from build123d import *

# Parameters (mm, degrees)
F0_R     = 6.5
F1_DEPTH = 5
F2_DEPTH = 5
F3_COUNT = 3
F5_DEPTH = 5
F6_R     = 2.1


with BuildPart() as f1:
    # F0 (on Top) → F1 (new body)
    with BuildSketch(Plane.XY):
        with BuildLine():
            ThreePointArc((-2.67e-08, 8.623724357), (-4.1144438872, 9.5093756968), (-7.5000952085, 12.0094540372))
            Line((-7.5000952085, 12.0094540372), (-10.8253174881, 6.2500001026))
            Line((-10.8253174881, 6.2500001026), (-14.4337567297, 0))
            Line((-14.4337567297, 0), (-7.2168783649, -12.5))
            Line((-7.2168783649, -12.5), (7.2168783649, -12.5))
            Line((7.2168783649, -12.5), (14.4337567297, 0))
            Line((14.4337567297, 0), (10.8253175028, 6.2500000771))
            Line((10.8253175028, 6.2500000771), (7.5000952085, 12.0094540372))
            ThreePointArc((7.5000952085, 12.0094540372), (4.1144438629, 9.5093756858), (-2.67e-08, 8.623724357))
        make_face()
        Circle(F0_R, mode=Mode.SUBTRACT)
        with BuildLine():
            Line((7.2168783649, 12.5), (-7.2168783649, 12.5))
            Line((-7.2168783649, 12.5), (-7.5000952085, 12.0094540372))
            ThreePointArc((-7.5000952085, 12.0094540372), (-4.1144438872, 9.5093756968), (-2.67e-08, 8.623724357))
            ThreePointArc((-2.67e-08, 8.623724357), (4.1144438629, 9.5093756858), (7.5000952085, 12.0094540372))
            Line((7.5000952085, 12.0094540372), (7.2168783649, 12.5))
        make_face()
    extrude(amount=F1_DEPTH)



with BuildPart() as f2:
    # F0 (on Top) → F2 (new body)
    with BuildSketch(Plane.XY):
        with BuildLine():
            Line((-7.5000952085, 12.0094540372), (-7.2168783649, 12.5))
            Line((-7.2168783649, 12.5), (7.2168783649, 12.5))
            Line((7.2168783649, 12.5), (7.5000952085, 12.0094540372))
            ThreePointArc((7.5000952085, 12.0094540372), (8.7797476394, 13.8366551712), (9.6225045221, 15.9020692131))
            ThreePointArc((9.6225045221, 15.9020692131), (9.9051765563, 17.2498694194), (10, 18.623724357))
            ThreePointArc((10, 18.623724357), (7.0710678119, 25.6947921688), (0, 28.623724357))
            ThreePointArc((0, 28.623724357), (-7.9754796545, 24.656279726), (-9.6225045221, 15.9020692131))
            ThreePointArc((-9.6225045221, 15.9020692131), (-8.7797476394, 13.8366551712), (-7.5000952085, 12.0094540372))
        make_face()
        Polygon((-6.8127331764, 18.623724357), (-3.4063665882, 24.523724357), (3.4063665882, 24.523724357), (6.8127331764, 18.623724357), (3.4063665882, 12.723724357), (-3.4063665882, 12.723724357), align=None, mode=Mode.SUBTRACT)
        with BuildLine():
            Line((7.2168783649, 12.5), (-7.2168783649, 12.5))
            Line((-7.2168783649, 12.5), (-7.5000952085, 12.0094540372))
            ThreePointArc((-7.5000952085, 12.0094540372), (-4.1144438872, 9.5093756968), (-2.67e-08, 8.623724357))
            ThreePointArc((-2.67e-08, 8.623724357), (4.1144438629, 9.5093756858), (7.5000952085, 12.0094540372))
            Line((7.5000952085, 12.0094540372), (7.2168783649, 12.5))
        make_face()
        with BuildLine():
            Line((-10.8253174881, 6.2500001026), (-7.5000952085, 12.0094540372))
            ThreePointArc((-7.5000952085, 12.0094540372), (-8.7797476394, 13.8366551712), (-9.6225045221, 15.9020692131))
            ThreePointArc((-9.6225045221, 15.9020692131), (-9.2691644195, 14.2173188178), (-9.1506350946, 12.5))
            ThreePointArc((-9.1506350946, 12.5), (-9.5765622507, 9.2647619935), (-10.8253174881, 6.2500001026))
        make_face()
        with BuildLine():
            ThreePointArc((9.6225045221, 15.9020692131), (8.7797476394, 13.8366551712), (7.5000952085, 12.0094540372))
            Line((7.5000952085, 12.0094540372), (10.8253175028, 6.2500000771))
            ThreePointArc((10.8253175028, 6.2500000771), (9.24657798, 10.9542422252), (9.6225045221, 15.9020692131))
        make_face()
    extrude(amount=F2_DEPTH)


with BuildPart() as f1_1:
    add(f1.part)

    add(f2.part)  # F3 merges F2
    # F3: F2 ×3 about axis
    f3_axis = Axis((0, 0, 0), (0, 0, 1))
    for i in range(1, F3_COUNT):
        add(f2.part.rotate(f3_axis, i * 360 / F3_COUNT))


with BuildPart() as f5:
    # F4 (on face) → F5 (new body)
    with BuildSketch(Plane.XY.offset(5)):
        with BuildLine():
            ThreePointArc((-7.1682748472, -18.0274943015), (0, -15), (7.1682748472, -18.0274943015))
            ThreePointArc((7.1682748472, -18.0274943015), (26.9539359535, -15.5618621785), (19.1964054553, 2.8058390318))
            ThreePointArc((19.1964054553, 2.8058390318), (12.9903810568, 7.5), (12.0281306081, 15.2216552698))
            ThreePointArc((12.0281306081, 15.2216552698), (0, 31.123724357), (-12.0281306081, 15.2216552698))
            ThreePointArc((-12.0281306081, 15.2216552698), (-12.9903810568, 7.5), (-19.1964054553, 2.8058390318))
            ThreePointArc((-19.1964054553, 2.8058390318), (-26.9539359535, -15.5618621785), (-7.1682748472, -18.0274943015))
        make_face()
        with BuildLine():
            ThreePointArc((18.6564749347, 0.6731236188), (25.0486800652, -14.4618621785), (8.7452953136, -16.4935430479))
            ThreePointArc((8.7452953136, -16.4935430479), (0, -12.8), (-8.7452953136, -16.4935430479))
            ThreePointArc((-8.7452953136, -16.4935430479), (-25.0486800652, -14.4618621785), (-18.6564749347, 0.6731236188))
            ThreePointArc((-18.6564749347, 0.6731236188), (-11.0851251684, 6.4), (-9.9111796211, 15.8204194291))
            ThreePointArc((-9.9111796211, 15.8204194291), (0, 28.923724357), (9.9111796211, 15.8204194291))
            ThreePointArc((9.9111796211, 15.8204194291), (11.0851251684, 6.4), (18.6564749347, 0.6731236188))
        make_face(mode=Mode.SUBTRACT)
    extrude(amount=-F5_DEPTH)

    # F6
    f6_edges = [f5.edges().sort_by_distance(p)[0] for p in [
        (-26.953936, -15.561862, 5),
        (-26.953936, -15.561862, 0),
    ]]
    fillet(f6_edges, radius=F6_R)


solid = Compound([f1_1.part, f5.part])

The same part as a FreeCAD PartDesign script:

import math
import FreeCAD as App
import Part
import Sketcher
from FreeCAD import Vector
Q = App.Units.Quantity


def edges_at(feature, points):
    """Names of the edges that pass closest to the given points."""
    edges = feature.Shape.Edges
    near = lambda p: min(range(len(edges)), key=lambda i: edges[i].distToShape(Part.Vertex(*p))[0])
    return sorted({f"Edge{near(p) + 1}" for p in points})


def add_polygon(sketch, points):
    """Adds a closed chain of lines whose ends are joined by coincident constraints."""
    first, n = sketch.GeometryCount, len(points)
    for a, b in zip(points, points[1:] + points[:1]):
        sketch.addGeometry(Part.LineSegment(App.Vector(*a, 0), App.Vector(*b, 0)), False)
    for i in range(n):
        sketch.addConstraint(Sketcher.Constraint("Coincident", first + i, 2, first + (i + 1) % n, 1))

doc = App.newDocument("Part")
body = doc.addObject("PartDesign::Body", "Body")

# Sketch on XY plane
sketch1 = body.newObject("Sketcher::SketchObject", "Sketch")
sketch1.AttachmentSupport = (doc.getObject("XY_Plane"), [""])
sketch1.MapMode = "FlatFace"
add_polygon(sketch1, [(-7.500095, 12.009454), (-10.825317, 6.25), (-14.433757, 0), (-7.216878, -12.5), (7.216878, -12.5), (14.433757, 0), (10.825318, 6.25), (7.500095, 12.009454), (7.216878, 12.5), (-7.216878, 12.5)])  # lines 0-9
sketch1.addGeometry(Part.Circle(Vector(0, 0, 0), Vector(0, 0, 1), 6.5), False)  # 10
sketch1.addConstraint([
    Sketcher.Constraint("Horizontal", 3),
    Sketcher.Constraint("Horizontal", 8),
    Sketcher.Constraint("Coincident", 10, 3, -1, 1),
    Sketcher.Constraint("Symmetric", 1, 2, 4, 2, -1, 1),
    Sketcher.Constraint("Symmetric", 2, 2, 7, 2, -1, 1),
    Sketcher.Constraint("Symmetric", 0, 2, 5, 2, -2),
    Sketcher.Constraint("Symmetric", 6, 2, 9, 2, -2),
    Sketcher.Constraint("PointOnObject", 1, 2, -1),
    Sketcher.Constraint("Parallel", 0, 1),
    Sketcher.Constraint("Parallel", 1, 4),
    Sketcher.Constraint("Parallel", 2, 5),
    Sketcher.Constraint("Parallel", 4, 9),
    Sketcher.Constraint("Diameter", 10, Q("13 mm")),
    Sketcher.Constraint("Angle", 0, Q("-120 deg")),
    Sketcher.Constraint("DistanceY", 2, 2, -1, 1, Q("12.5 mm")),
    Sketcher.Constraint("DistanceY", -1, 1, 0, 2, Q("6.25 mm")),
    Sketcher.Constraint("DistanceX", 3, 1, 3, 2, Q("14.433757 mm")),
    Sketcher.Constraint("DistanceX", 6, 2, 4, 2, Q("6.933662 mm")),
])
pad1 = body.newObject("PartDesign::Pad", "Pad")
pad1.Profile = sketch1
pad1.Length = 5
body2 = doc.addObject("PartDesign::Body", "Body001")

# Sketch on XY plane
sketch2 = body2.newObject("Sketcher::SketchObject", "Sketch001")
sketch2.AttachmentSupport = (doc.getObject("XY_Plane001"), [""])
sketch2.MapMode = "FlatFace"
sketch2.addGeometry(Part.ArcOfCircle(Part.Circle(Vector(0, 18.623724, 0), Vector(0, 0, 1), 10), math.radians(-138.591203), math.radians(-90)), False)  # 0
sketch2.addGeometry(Part.ArcOfCircle(Part.Circle(Vector(0, 18.623724, 0), Vector(0, 0, 1), 10), math.radians(-90), math.radians(-41.408797)), False)  # 1
sketch2.addGeometry(Part.LineSegment(Vector(7.500095, 12.009454, 0), Vector(10.825318, 6.25, 0)), False)  # 2
sketch2.addGeometry(Part.ArcOfCircle(Part.Circle(Vector(21.650635, 12.5, 0), Vector(0, 0, 1), 12.5), math.radians(164.20683), math.radians(210)), False)  # 3
sketch2.addGeometry(Part.ArcOfCircle(Part.Circle(Vector(0, 18.623724, 0), Vector(0, 0, 1), 10), math.radians(-15.793168), math.radians(0)), False)  # 4
sketch2.addGeometry(Part.ArcOfCircle(Part.Circle(Vector(0, 18.623724, 0), Vector(0, 0, 1), 10), math.radians(0), math.radians(90)), False)  # 5
sketch2.addGeometry(Part.ArcOfCircle(Part.Circle(Vector(0, 18.623724, 0), Vector(0, 0, 1), 10), math.radians(90), math.radians(195.793168)), False)  # 6
sketch2.addGeometry(Part.ArcOfCircle(Part.Circle(Vector(-21.650635, 12.5, 0), Vector(0, 0, 1), 12.5), math.radians(0), math.radians(15.79317)), False)  # 7
sketch2.addGeometry(Part.ArcOfCircle(Part.Circle(Vector(-21.650635, 12.5, 0), Vector(0, 0, 1), 12.5), math.radians(-29.999999), math.radians(0)), False)  # 8
sketch2.addGeometry(Part.LineSegment(Vector(-10.825317, 6.25, 0), Vector(-7.500095, 12.009454, 0)), False)  # 9
add_polygon(sketch2, [(-3.406367, 12.723724), (-6.812733, 18.623724), (-3.406367, 24.523724), (3.406367, 24.523724), (6.812733, 18.623724), (3.406367, 12.723724)])  # lines 10-15
sketch2.addConstraint([
    Sketcher.Constraint("Tangent", 0, 2, 1, 1),
    Sketcher.Constraint("Coincident", 1, 2, 2, 1),
    Sketcher.Constraint("Tangent", 2, 2, 3, 2),
    Sketcher.Constraint("Tangent", 3, 1, 4, 1),
    Sketcher.Constraint("Tangent", 4, 2, 5, 1),
    Sketcher.Constraint("Tangent", 5, 2, 6, 1),
    Sketcher.Constraint("Tangent", 6, 2, 7, 2),
    Sketcher.Constraint("Tangent", 7, 1, 8, 2),
    Sketcher.Constraint("Tangent", 8, 1, 9, 1),
    Sketcher.Constraint("Coincident", 9, 2, 0, 1),
    Sketcher.Constraint("Horizontal", 12),
    Sketcher.Constraint("Horizontal", 15),
    Sketcher.Constraint("Coincident", 4, 3, 0, 3),
    Sketcher.Constraint("Coincident", 6, 3, 0, 3),
    Sketcher.Constraint("Equal", 0, 1),
    Sketcher.Constraint("Equal", 1, 4),
    Sketcher.Constraint("Equal", 3, 7),
    Sketcher.Constraint("Equal", 7, 8),
    Sketcher.Constraint("Symmetric", 3, 3, 7, 3, -2),
    Sketcher.Constraint("Symmetric", 10, 2, 13, 2, -2),
    Sketcher.Constraint("PointOnObject", 0, 2, -2),
    Sketcher.Constraint("PointOnObject", 5, 2, -2),
    Sketcher.Constraint("Parallel", 2, 10),
    Sketcher.Constraint("Parallel", 9, 11),
    Sketcher.Constraint("Parallel", 10, 13),
    Sketcher.Constraint("Parallel", 11, 14),
    Sketcher.Constraint("Horizontal", 6, 3, 4, 2),
    Sketcher.Constraint("Horizontal", 8, 3, 7, 1),
    Sketcher.Constraint("Horizontal", 2, 2, 8, 1),
    Sketcher.Constraint("Horizontal", 4, 2, 10, 2),
    Sketcher.Constraint("Vertical", 12, 2, 14, 2),
    Sketcher.Constraint("Radius", 0, Q("10 mm")),
    Sketcher.Constraint("Radius", 3, Q("12.5 mm")),
    Sketcher.Constraint("Angle", 2, Q("-60 deg")),
    Sketcher.Constraint("DistanceY", -1, 1, 3, 3, Q("12.5 mm")),
    Sketcher.Constraint("DistanceY", 11, 2, 5, 2, Q("4.1 mm")),
    Sketcher.Constraint("DistanceX", 7, 1, 10, 2, Q("2.337902 mm")),
    Sketcher.Constraint("DistanceX", 12, 1, 12, 2, Q("6.812733 mm")),
])
pad2 = body2.newObject("PartDesign::Pad", "Pad001")
pad2.Profile = sketch2
pad2.Length = 5
doc.recompute()

body3 = doc.addObject("PartDesign::Body", "Body002")
body3.BaseFeature = body2
boolean = body.newObject("PartDesign::Boolean", "Boolean")
boolean.Type = "Fuse"
boolean.addObjects([body3])
doc.recompute()

body4 = doc.addObject("PartDesign::Body", "Body003")
body4.BaseFeature = body2
body4.Placement = App.Placement(Vector(0, 0, 0), App.Rotation(Vector(0, 0, 1), 120))
boolean2 = body.newObject("PartDesign::Boolean", "Boolean001")
boolean2.Type = "Fuse"
boolean2.addObjects([body4])
doc.recompute()

body2.Placement = App.Placement(Vector(0, 0, 0), App.Rotation(Vector(0, 0, 1), 240))
boolean3 = body.newObject("PartDesign::Boolean", "Boolean002")
boolean3.Type = "Fuse"
boolean3.addObjects([body2])
body5 = doc.addObject("PartDesign::Body", "Body004")

# Sketch on XY plane
sketch3 = body5.newObject("Sketcher::SketchObject", "Sketch002")
sketch3.AttachmentSupport = (doc.getObject("XY_Plane004"), [""])
sketch3.MapMode = "FlatFace"
sketch3.AttachmentOffset = App.Placement(Vector(0, 0, 5), App.Rotation())
sketch3.addGeometry([
    Part.ArcOfCircle(Part.Circle(Vector(0, -25, 0), Vector(0, 0, 1), 10), math.radians(44.206831), math.radians(135.793169)),  # 0
    Part.ArcOfCircle(Part.Circle(Vector(16.128618, -9.311862, 0), Vector(0, 0, 1), 12.5), math.radians(-135.793169), math.radians(75.793169)),  # 1
    Part.ArcOfCircle(Part.Circle(Vector(21.650635, 12.5, 0), Vector(0, 0, 1), 10), math.radians(164.206831), math.radians(255.793169)),  # 2
    Part.ArcOfCircle(Part.Circle(Vector(0, 18.623724, 0), Vector(0, 0, 1), 12.5), math.radians(-15.793169), math.radians(195.793169)),  # 3
    Part.ArcOfCircle(Part.Circle(Vector(-21.650635, 12.5, 0), Vector(0, 0, 1), 10), math.radians(-75.793169), math.radians(15.793169)),  # 4
    Part.ArcOfCircle(Part.Circle(Vector(-16.128618, -9.311862, 0), Vector(0, 0, 1), 12.5), math.radians(104.206831), math.radians(315.793169)),  # 5
    Part.ArcOfCircle(Part.Circle(Vector(21.650635, 12.5, 0), Vector(0, 0, 1), 12.2), math.radians(164.206831), math.radians(255.793169)),  # 6
    Part.ArcOfCircle(Part.Circle(Vector(16.128618, -9.311862, 0), Vector(0, 0, 1), 10.3), math.radians(-135.793169), math.radians(75.793169)),  # 7
    Part.ArcOfCircle(Part.Circle(Vector(0, -25, 0), Vector(0, 0, 1), 12.2), math.radians(44.206831), math.radians(135.793169)),  # 8
    Part.ArcOfCircle(Part.Circle(Vector(-16.128618, -9.311862, 0), Vector(0, 0, 1), 10.3), math.radians(104.206831), math.radians(315.793169)),  # 9
    Part.ArcOfCircle(Part.Circle(Vector(-21.650635, 12.5, 0), Vector(0, 0, 1), 12.2), math.radians(-75.793169), math.radians(15.793169)),  # 10
    Part.ArcOfCircle(Part.Circle(Vector(0, 18.623724, 0), Vector(0, 0, 1), 10.3), math.radians(-15.793169), math.radians(195.793169)),  # 11
], False)
sketch3.addConstraint([
    Sketcher.Constraint("Tangent", 0, 1, 1, 1),
    Sketcher.Constraint("Tangent", 1, 2, 2, 2),
    Sketcher.Constraint("Tangent", 2, 1, 3, 1),
    Sketcher.Constraint("Tangent", 3, 2, 4, 2),
    Sketcher.Constraint("Tangent", 4, 1, 5, 1),
    Sketcher.Constraint("Tangent", 5, 2, 0, 2),
    Sketcher.Constraint("Tangent", 6, 2, 7, 2),
    Sketcher.Constraint("Tangent", 7, 1, 8, 1),
    Sketcher.Constraint("Tangent", 8, 2, 9, 2),
    Sketcher.Constraint("Tangent", 9, 1, 10, 1),
    Sketcher.Constraint("Tangent", 10, 2, 11, 2),
    Sketcher.Constraint("Tangent", 11, 1, 6, 1),
    Sketcher.Constraint("Coincident", 6, 3, 2, 3),
    Sketcher.Constraint("Coincident", 7, 3, 1, 3),
    Sketcher.Constraint("Coincident", 8, 3, 0, 3),
    Sketcher.Constraint("Coincident", 9, 3, 5, 3),
    Sketcher.Constraint("Coincident", 10, 3, 4, 3),
    Sketcher.Constraint("Equal", 0, 2),
    Sketcher.Constraint("Equal", 1, 3),
    Sketcher.Constraint("Equal", 2, 4),
    Sketcher.Constraint("Equal", 3, 5),
    Sketcher.Constraint("Equal", 9, 11),
    Sketcher.Constraint("Symmetric", 2, 3, 4, 3, -2),
    Sketcher.Constraint("PointOnObject", 0, 3, -2),
    Sketcher.Constraint("Radius", 0, Q("10 mm")),
    Sketcher.Constraint("Radius", 1, Q("12.5 mm")),
    Sketcher.Constraint("Radius", 6, Q("12.2 mm")),
    Sketcher.Constraint("DistanceY", 0, 3, -1, 1, Q("25 mm")),
    Sketcher.Constraint("DistanceY", -1, 1, 2, 3, Q("12.5 mm")),
    Sketcher.Constraint("DistanceY", 1, 3, 1, 2, Q("12.117701 mm")),
])
pad3 = body5.newObject("PartDesign::Pad", "Pad002")
pad3.Profile = sketch3
pad3.Length = 5
pad3.Reversed = True
doc.recompute()

fillet = body5.newObject("PartDesign::Fillet", "Fillet")
fillet.Base = (pad3, edges_at(pad3, [(-26.954, -15.562, 5), (-26.954, -15.562, 0)]))
fillet.Radius = 2.1

doc.recompute()
